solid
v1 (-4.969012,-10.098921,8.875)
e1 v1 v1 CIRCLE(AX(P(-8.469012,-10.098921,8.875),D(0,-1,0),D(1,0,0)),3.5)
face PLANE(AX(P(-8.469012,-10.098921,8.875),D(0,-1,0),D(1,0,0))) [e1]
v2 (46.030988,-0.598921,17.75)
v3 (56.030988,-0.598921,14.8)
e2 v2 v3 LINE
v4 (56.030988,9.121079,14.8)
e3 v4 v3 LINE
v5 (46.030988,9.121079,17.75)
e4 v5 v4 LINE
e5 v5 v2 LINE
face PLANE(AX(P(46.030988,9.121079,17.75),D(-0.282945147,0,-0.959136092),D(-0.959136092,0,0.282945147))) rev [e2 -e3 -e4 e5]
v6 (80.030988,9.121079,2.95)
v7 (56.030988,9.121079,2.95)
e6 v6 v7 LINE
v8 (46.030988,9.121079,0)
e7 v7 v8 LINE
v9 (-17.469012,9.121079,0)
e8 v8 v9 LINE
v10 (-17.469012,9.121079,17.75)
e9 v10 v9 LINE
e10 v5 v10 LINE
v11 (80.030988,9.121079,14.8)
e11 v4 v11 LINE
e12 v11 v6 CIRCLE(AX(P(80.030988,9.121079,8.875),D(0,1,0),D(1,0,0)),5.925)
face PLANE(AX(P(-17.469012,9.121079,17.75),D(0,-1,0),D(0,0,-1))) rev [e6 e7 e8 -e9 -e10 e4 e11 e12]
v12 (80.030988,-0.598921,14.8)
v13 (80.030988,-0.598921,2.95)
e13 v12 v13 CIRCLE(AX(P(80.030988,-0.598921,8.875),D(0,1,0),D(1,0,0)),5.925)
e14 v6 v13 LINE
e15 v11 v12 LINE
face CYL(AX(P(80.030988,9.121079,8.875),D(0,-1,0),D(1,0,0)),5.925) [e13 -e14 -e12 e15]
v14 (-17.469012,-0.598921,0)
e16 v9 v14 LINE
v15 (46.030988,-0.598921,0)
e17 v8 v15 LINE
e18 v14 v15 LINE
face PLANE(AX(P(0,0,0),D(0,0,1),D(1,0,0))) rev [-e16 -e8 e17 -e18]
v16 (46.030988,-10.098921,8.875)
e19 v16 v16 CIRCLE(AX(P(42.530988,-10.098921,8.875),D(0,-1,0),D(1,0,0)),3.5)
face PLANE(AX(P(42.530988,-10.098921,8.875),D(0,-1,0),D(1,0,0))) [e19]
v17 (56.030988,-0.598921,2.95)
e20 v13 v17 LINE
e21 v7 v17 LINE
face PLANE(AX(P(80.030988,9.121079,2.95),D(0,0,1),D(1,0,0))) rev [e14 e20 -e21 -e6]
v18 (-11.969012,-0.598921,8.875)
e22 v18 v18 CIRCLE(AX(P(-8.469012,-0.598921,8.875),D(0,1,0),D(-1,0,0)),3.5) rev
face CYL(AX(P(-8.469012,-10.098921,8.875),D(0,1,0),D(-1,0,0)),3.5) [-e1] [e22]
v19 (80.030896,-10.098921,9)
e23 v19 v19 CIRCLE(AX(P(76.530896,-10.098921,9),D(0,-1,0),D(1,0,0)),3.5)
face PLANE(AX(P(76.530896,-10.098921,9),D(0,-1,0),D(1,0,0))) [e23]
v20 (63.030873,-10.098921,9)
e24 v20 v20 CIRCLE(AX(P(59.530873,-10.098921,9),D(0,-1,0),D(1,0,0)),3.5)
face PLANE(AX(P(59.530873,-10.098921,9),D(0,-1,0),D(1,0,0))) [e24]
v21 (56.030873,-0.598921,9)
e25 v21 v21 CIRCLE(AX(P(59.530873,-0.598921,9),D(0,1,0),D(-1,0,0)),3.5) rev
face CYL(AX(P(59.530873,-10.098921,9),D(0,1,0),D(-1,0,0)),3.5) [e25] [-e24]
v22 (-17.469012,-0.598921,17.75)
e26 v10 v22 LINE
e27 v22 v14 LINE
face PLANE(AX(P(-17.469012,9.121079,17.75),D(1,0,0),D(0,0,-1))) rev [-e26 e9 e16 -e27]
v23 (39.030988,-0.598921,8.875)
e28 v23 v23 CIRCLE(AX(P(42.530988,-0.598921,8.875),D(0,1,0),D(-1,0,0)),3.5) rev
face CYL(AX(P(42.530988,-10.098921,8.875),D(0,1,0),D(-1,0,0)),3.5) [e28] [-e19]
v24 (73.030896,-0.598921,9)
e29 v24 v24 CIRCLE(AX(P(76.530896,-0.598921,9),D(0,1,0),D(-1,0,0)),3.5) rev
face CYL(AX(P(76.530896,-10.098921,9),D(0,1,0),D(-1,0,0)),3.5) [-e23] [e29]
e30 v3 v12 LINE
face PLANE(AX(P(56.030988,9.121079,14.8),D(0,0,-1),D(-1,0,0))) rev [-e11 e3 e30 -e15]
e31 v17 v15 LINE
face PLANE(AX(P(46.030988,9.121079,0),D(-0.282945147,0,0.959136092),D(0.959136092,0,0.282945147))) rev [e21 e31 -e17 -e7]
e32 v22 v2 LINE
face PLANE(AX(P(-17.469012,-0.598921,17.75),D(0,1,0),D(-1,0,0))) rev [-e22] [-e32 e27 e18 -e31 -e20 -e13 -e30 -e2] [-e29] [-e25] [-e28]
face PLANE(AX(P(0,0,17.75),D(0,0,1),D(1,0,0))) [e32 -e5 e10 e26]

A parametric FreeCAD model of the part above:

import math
import FreeCAD as App
import Part
import Sketcher
Q = App.Units.Quantity

doc = App.newDocument("Part")
body = doc.addObject("PartDesign::Body", "Body")

# Sketch on XY plane
sketch1 = doc.addObject("Sketcher::SketchObject", "Sketch")
body.addObject(sketch1)
sketch1.AttachmentSupport = (doc.XY_Plane, [""])
sketch1.MapMode = "FlatFace"
sketch1.addGeometry(Part.LineSegment(App.Vector(-17.469012, 9.121079, 0), App.Vector(-17.469012, -0.598921, 0)), False)
sketch1.addGeometry(Part.LineSegment(App.Vector(-17.469012, -0.598921, 0), App.Vector(86.530988, -0.598921, 0)), False)
sketch1.addGeometry(Part.LineSegment(App.Vector(86.530988, -0.598921, 0), App.Vector(86.530988, 9.121079, 0)), False)
sketch1.addGeometry(Part.LineSegment(App.Vector(86.530988, 9.121079, 0), App.Vector(-17.469012, 9.121079, 0)), False)
sketch1.addConstraint(Sketcher.Constraint("Coincident", 0, 2, 1, 1))
sketch1.addConstraint(Sketcher.Constraint("Coincident", 1, 2, 2, 1))
sketch1.addConstraint(Sketcher.Constraint("Coincident", 2, 2, 3, 1))
sketch1.addConstraint(Sketcher.Constraint("Coincident", 3, 2, 0, 1))
sketch1.addConstraint(Sketcher.Constraint("Vertical", 0))
sketch1.addConstraint(Sketcher.Constraint("Horizontal", 1))
sketch1.addConstraint(Sketcher.Constraint("Vertical", 2))
sketch1.addConstraint(Sketcher.Constraint("Horizontal", 3))
sketch1.addConstraint(Sketcher.Constraint("DistanceX", 1, 1, 1, 2, Q("104 mm")))
sketch1.addConstraint(Sketcher.Constraint("DistanceY", 0, 2, 0, 1, Q("9.72 mm")))
sketch1.addConstraint(Sketcher.Constraint("DistanceY", 0, 2, -1, 1, Q("0.598921 mm")))
sketch1.addConstraint(Sketcher.Constraint("DistanceX", 0, 2, -1, 1, Q("17.469012 mm")))
pad1 = doc.addObject("PartDesign::Pad", "Pad")
body.addObject(pad1)
pad1.Profile = sketch1
pad1.Length = 17.75

# Sketch on XZ plane
sketch2 = doc.addObject("Sketcher::SketchObject", "Sketch001")
body.addObject(sketch2)
sketch2.AttachmentSupport = (doc.XZ_Plane, [""])
sketch2.MapMode = "FlatFace"
sketch2.AttachmentOffset = App.Placement(App.Vector(0, 0, 0.598921), App.Rotation())
sketch2.addGeometry(Part.LineSegment(App.Vector(46.030988, 17.75, 0), App.Vector(56.030988, 14.8, 0)), False)
sketch2.addGeometry(Part.LineSegment(App.Vector(56.030988, 14.8, 0), App.Vector(80.030988, 14.8, 0)), False)
sketch2.addGeometry(Part.ArcOfCircle(Part.Circle(App.Vector(80.030988, 8.875, 0), App.Vector(0, 0, 1), 5.925), math.radians(-90), math.radians(90)), False)
sketch2.addGeometry(Part.LineSegment(App.Vector(80.030988, 2.95, 0), App.Vector(56.030988, 2.95, 0)), False)
sketch2.addGeometry(Part.LineSegment(App.Vector(56.030988, 2.95, 0), App.Vector(46.030988, 0, 0)), False)
sketch2.addGeometry(Part.LineSegment(App.Vector(46.030988, 0, 0), App.Vector(86.530988, 0, 0)), False)
sketch2.addGeometry(Part.LineSegment(App.Vector(86.530988, 0, 0), App.Vector(86.530988, 17.75, 0)), False)
sketch2.addGeometry(Part.LineSegment(App.Vector(86.530988, 17.75, 0), App.Vector(46.030988, 17.75, 0)), False)
sketch2.addConstraint(Sketcher.Constraint("Coincident", 0, 2, 1, 1))
sketch2.addConstraint(Sketcher.Constraint("Tangent", 1, 2, 2, 2))
sketch2.addConstraint(Sketcher.Constraint("Tangent", 2, 1, 3, 1))
sketch2.addConstraint(Sketcher.Constraint("Coincident", 3, 2, 4, 1))
sketch2.addConstraint(Sketcher.Constraint("Coincident", 4, 2, 5, 1))
sketch2.addConstraint(Sketcher.Constraint("Coincident", 5, 2, 6, 1))
sketch2.addConstraint(Sketcher.Constraint("Coincident", 6, 2, 7, 1))
sketch2.addConstraint(Sketcher.Constraint("Coincident", 7, 2, 0, 1))
sketch2.addConstraint(Sketcher.Constraint("Horizontal", 1))
sketch2.addConstraint(Sketcher.Constraint("Horizontal", 3))
sketch2.addConstraint(Sketcher.Constraint("Horizontal", 5))
sketch2.addConstraint(Sketcher.Constraint("Vertical", 6))
sketch2.addConstraint(Sketcher.Constraint("Horizontal", 7))
sketch2.addConstraint(Sketcher.Constraint("PointOnObject", 4, 2, -1))
sketch2.addConstraint(Sketcher.Constraint("Vertical", 0, 2, 3, 2))
sketch2.addConstraint(Sketcher.Constraint("Vertical", 4, 2, 7, 2))
sketch2.addConstraint(Sketcher.Constraint("Equal", 0, 4))
sketch2.addConstraint(Sketcher.Constraint("DistanceX", 1, 1, 1, 2, Q("24 mm")))
sketch2.addConstraint(Sketcher.Constraint("DistanceX", 5, 1, 5, 2, Q("40.5 mm")))
sketch2.addConstraint(Sketcher.Constraint("Radius", 2, Q("5.925 mm")))
sketch2.addConstraint(Sketcher.Constraint("DistanceX", 4, 2, 3, 2, Q("10 mm")))
sketch2.addConstraint(Sketcher.Constraint("DistanceY", 6, 1, 6, 2, Q("17.75 mm")))
sketch2.addConstraint(Sketcher.Constraint("DistanceX", -1, 1, 2, 3, Q("80.030988 mm")))
pocket1 = doc.addObject("PartDesign::Pocket", "Pocket")
body.addObject(pocket1)
pocket1.Profile = sketch2
pocket1.Type = "ThroughAll"

# Sketch on XZ plane
sketch3 = doc.addObject("Sketcher::SketchObject", "Sketch002")
body.addObject(sketch3)
sketch3.AttachmentSupport = (doc.XZ_Plane, [""])
sketch3.MapMode = "FlatFace"
sketch3.AttachmentOffset = App.Placement(App.Vector(0, 0, 0.598921), App.Rotation())
sketch3.addGeometry(Part.Circle(App.Vector(-8.469012, 8.875, 0), App.Vector(0, 0, 1), 3.5), False)
sketch3.addGeometry(Part.Circle(App.Vector(42.530988, 8.875, 0), App.Vector(0, 0, 1), 3.5), False)
sketch3.addGeometry(Part.Circle(App.Vector(59.530873, 9, 0), App.Vector(0, 0, 1), 3.5), False)
sketch3.addGeometry(Part.Circle(App.Vector(76.530896, 9, 0), App.Vector(0, 0, 1), 3.5), False)
sketch3.addConstraint(Sketcher.Constraint("Equal", 0, 1))
sketch3.addConstraint(Sketcher.Constraint("Equal", 1, 2))
sketch3.addConstraint(Sketcher.Constraint("Equal", 2, 3))
sketch3.addConstraint(Sketcher.Constraint("Horizontal", 0, 3, 1, 3))
sketch3.addConstraint(Sketcher.Constraint("Horizontal", 2, 3, 3, 3))
sketch3.addConstraint(Sketcher.Constraint("Diameter", 0, Q("7 mm")))
sketch3.addConstraint(Sketcher.Constraint("DistanceY", -1, 1, 2, 3, Q("9 mm")))
sketch3.addConstraint(Sketcher.Constraint("DistanceX", 0, 3, 1, 3, Q("51 mm")))
sketch3.addConstraint(Sketcher.Constraint("DistanceY", -1, 1, 0, 3, Q("8.875 mm")))
sketch3.addConstraint(Sketcher.Constraint("DistanceX", 1, 3, 3, 3, Q("33.999908 mm")))
sketch3.addConstraint(Sketcher.Constraint("DistanceX", 0, 3, -1, 1, Q("8.469012 mm")))
sketch3.addConstraint(Sketcher.Constraint("DistanceX", -1, 1, 2, 3, Q("59.530873 mm")))
pad2 = doc.addObject("PartDesign::Pad", "Pad001")
body.addObject(pad2)
pad2.Profile = sketch3
pad2.Length = 9.5

doc.recompute()
